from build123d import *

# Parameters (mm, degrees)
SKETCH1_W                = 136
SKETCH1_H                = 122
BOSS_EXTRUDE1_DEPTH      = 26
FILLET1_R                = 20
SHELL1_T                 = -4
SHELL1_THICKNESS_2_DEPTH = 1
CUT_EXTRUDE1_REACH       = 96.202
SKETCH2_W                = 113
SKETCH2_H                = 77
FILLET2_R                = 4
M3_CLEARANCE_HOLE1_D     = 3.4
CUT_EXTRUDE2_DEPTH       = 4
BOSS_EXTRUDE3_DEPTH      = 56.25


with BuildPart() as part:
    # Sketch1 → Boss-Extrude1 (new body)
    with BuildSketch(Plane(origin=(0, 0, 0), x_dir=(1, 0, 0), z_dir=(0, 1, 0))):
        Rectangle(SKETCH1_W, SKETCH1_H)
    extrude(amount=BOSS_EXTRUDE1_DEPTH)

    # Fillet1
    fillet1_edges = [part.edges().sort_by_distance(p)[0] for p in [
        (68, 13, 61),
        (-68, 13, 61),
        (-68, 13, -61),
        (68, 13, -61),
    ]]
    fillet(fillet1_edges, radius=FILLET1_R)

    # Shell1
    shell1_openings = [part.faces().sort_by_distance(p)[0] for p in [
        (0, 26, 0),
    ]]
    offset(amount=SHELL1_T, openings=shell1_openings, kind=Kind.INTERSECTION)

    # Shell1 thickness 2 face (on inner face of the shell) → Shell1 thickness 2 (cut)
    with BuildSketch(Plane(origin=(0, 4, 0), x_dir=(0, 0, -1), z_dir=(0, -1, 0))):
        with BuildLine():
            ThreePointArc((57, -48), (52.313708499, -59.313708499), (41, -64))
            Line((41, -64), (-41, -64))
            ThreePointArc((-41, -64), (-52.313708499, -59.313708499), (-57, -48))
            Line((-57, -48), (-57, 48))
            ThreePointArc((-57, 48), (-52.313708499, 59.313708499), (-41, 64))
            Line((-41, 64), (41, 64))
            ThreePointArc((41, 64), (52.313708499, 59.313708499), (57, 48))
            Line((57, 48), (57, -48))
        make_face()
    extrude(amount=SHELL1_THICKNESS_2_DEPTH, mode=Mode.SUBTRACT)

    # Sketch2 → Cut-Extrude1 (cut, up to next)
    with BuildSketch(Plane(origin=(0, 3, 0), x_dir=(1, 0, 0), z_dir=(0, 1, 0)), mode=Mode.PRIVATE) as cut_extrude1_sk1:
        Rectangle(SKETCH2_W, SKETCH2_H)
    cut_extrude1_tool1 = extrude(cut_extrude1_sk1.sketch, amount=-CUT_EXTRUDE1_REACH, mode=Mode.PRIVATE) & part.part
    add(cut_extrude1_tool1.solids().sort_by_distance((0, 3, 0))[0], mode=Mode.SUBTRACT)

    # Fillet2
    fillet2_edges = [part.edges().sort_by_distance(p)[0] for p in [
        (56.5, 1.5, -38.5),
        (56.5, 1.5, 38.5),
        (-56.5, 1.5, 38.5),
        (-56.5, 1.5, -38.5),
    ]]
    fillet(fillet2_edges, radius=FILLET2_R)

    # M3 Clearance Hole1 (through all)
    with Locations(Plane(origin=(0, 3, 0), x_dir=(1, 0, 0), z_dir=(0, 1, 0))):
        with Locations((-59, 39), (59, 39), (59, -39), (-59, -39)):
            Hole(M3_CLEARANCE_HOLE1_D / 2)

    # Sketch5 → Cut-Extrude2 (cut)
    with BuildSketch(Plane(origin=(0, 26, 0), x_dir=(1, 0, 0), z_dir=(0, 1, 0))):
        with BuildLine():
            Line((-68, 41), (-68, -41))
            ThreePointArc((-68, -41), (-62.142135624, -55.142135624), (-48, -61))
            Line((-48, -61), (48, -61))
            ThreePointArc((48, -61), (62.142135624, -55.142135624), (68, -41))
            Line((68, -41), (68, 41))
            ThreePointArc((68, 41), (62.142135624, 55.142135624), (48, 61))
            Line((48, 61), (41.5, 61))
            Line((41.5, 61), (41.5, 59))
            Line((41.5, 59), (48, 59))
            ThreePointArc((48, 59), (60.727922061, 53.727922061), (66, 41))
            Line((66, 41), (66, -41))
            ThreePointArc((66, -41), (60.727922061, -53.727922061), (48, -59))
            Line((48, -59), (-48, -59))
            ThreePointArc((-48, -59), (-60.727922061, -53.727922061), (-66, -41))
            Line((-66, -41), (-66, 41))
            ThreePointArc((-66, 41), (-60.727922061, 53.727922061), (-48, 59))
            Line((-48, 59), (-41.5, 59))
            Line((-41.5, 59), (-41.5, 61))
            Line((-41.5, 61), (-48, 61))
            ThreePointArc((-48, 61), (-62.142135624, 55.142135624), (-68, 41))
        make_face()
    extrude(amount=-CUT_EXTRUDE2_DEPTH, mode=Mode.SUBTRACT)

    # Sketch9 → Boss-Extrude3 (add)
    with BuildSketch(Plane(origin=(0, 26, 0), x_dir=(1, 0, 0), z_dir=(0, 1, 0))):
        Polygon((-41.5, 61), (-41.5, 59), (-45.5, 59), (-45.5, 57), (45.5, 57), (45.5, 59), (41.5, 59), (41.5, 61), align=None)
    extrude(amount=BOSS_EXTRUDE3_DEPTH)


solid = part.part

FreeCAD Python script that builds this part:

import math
import FreeCAD as App
import Part
import Sketcher
from FreeCAD import Vector


def edges_at(feature, points):
    """Names of the edges that pass closest to the given points."""
    edges = feature.Shape.Edges
    near = lambda p: min(range(len(edges)), key=lambda i: edges[i].distToShape(Part.Vertex(*p))[0])
    return sorted({f"Edge{near(p) + 1}" for p in points})


def faces_at(feature, points):
    """Names of the faces that lie closest to the given points."""
    faces = feature.Shape.Faces
    near = lambda p: min(range(len(faces)), key=lambda i: faces[i].distToShape(Part.Vertex(*p))[0])
    return sorted({f"Face{near(p) + 1}" for p in points})

doc = App.newDocument("Part")
body = doc.addObject("PartDesign::Body", "Body")

# Sketch on XZ plane
sketch1 = body.newObject("Sketcher::SketchObject", "Sketch")
sketch1.AttachmentSupport = (doc.getObject("XZ_Plane"), [""])
sketch1.MapMode = "FlatFace"
sketch1.addGeometry([
    Part.LineSegment(Vector(-68, -61, 0), Vector(-68, 61, 0)),
    Part.LineSegment(Vector(-68, 61, 0), Vector(68, 61, 0)),
    Part.LineSegment(Vector(68, 61, 0), Vector(68, -61, 0)),
    Part.LineSegment(Vector(68, -61, 0), Vector(-68, -61, 0)),
], False)
sketch1.addConstraint([
    Sketcher.Constraint("Coincident", 0, 2, 1, 1),
    Sketcher.Constraint("Coincident", 1, 2, 2, 1),
    Sketcher.Constraint("Coincident", 2, 2, 3, 1),
    Sketcher.Constraint("Coincident", 3, 2, 0, 1),
    Sketcher.Constraint("Vertical", 0),
    Sketcher.Constraint("Horizontal", 1),
    Sketcher.Constraint("Vertical", 2),
    Sketcher.Constraint("Horizontal", 3),
    Sketcher.Constraint("Symmetric", 0, 2, 2, 2, -1, 1),
    Sketcher.Constraint("DistanceX", 1, 1, 1, 2, 136.0),
    Sketcher.Constraint("DistanceY", 0, 1, 0, 2, 122.0),
])
pad1 = body.newObject("PartDesign::Pad", "Pad")
pad1.Profile = sketch1
pad1.Length = 26
pad1.Reversed = True
doc.recompute()

fillet = body.newObject("PartDesign::Fillet", "Fillet")
fillet.Base = (pad1, edges_at(pad1, [
    (68, 13, 61),
    (-68, 13, 61),
    (-68, 13, -61),
    (68, 13, -61),
]))
fillet.Radius = 20
doc.recompute()

thickness = body.newObject("PartDesign::Thickness", "Thickness")
thickness.Base = (fillet, faces_at(fillet, [(0, 26, 0)]))
thickness.Value = 4
thickness.Reversed = True
thickness.Join = "Intersection"

# Sketch on XZ plane
sketch2 = body.newObject("Sketcher::SketchObject", "Sketch001")
sketch2.AttachmentSupport = (doc.getObject("XZ_Plane"), [""])
sketch2.MapMode = "FlatFace"
sketch2.AttachmentOffset = App.Placement(Vector(0, 0, -4), App.Rotation())
sketch2.addGeometry([
    Part.ArcOfCircle(Part.Circle(Vector(-48, -41, 0), Vector(0, 0, 1), 16), math.radians(180), math.radians(270)),  # 0
    Part.LineSegment(Vector(-48, -57, 0), Vector(48, -57, 0)),  # 1
    Part.ArcOfCircle(Part.Circle(Vector(48, -41, 0), Vector(0, 0, 1), 16), math.radians(-90), math.radians(0)),  # 2
    Part.LineSegment(Vector(64, -41, 0), Vector(64, 41, 0)),  # 3
    Part.ArcOfCircle(Part.Circle(Vector(48, 41, 0), Vector(0, 0, 1), 16), math.radians(0), math.radians(90)),  # 4
    Part.LineSegment(Vector(48, 57, 0), Vector(-48, 57, 0)),  # 5
    Part.ArcOfCircle(Part.Circle(Vector(-48, 41, 0), Vector(0, 0, 1), 16), math.radians(90), math.radians(180)),  # 6
    Part.LineSegment(Vector(-64, 41, 0), Vector(-64, -41, 0)),  # 7
], False)
sketch2.addConstraint([
    Sketcher.Constraint("Tangent", 0, 2, 1, 1),
    Sketcher.Constraint("Tangent", 1, 2, 2, 1),
    Sketcher.Constraint("Tangent", 2, 2, 3, 1),
    Sketcher.Constraint("Tangent", 3, 2, 4, 1),
    Sketcher.Constraint("Tangent", 4, 2, 5, 1),
    Sketcher.Constraint("Tangent", 5, 2, 6, 1),
    Sketcher.Constraint("Tangent", 6, 2, 7, 1),
    Sketcher.Constraint("Tangent", 7, 2, 0, 1),
    Sketcher.Constraint("Horizontal", 1),
    Sketcher.Constraint("Vertical", 3),
    Sketcher.Constraint("Horizontal", 5),
    Sketcher.Constraint("Vertical", 7),
    Sketcher.Constraint("Equal", 0, 2),
    Sketcher.Constraint("Equal", 2, 4),
    Sketcher.Constraint("Equal", 4, 6),
    Sketcher.Constraint("Symmetric", 0, 3, 4, 3, -1, 1),
    Sketcher.Constraint("Radius", 0, 16.0),
    Sketcher.Constraint("DistanceX", 1, 1, 1, 2, 96.0),
    Sketcher.Constraint("DistanceY", 3, 1, 3, 2, 82.0),
])
pocket1 = body.newObject("PartDesign::Pocket", "Pocket")
pocket1.Profile = sketch2
pocket1.Length = 1
pocket1.Reversed = True

# Sketch on XZ plane
sketch3 = body.newObject("Sketcher::SketchObject", "Sketch002")
sketch3.AttachmentSupport = (doc.getObject("XZ_Plane"), [""])
sketch3.MapMode = "FlatFace"
sketch3.AttachmentOffset = App.Placement(Vector(0, 0, -3), App.Rotation())
sketch3.addGeometry([
    Part.LineSegment(Vector(-56.5, -38.5, 0), Vector(-56.5, 38.5, 0)),
    Part.LineSegment(Vector(-56.5, 38.5, 0), Vector(56.5, 38.5, 0)),
    Part.LineSegment(Vector(56.5, 38.5, 0), Vector(56.5, -38.5, 0)),
    Part.LineSegment(Vector(56.5, -38.5, 0), Vector(-56.5, -38.5, 0)),
], False)
sketch3.addConstraint([
    Sketcher.Constraint("Coincident", 0, 2, 1, 1),
    Sketcher.Constraint("Coincident", 1, 2, 2, 1),
    Sketcher.Constraint("Coincident", 2, 2, 3, 1),
    Sketcher.Constraint("Coincident", 3, 2, 0, 1),
    Sketcher.Constraint("Vertical", 0),
    Sketcher.Constraint("Horizontal", 1),
    Sketcher.Constraint("Vertical", 2),
    Sketcher.Constraint("Horizontal", 3),
    Sketcher.Constraint("Symmetric", 0, 2, 2, 2, -1, 1),
    Sketcher.Constraint("DistanceX", 1, 1, 1, 2, 113.0),
    Sketcher.Constraint("DistanceY", 0, 1, 0, 2, 77.0),
])
pocket2 = body.newObject("PartDesign::Pocket", "Pocket001")
pocket2.Profile = sketch3
pocket2.Type = "UpToFirst"
pocket2.Reversed = True
doc.recompute()

fillet2 = body.newObject("PartDesign::Fillet", "Fillet001")
fillet2.Base = (pocket2, edges_at(pocket2, [
    (56.5, 1.5, -38.5),
    (56.5, 1.5, 38.5),
    (-56.5, 1.5, 38.5),
    (-56.5, 1.5, -38.5),
]))
fillet2.Radius = 4

# Sketch on XZ plane
sketch4 = body.newObject("Sketcher::SketchObject", "Sketch003")
sketch4.AttachmentSupport = (doc.getObject("XZ_Plane"), [""])
sketch4.MapMode = "FlatFace"
sketch4.AttachmentOffset = App.Placement(Vector(0, 0, -3), App.Rotation())
sketch4.addGeometry([
    Part.Circle(Vector(-59, -39, 0), Vector(0, 0, 1), 1.7),
    Part.Circle(Vector(59, -39, 0), Vector(0, 0, 1), 1.7),
    Part.Circle(Vector(59, 39, 0), Vector(0, 0, 1), 1.7),
    Part.Circle(Vector(-59, 39, 0), Vector(0, 0, 1), 1.7),
], False)
sketch4.addConstraint([
    Sketcher.Constraint("Equal", 0, 1),
    Sketcher.Constraint("Equal", 1, 2),
    Sketcher.Constraint("Equal", 2, 3),
    Sketcher.Constraint("Symmetric", 0, 3, 2, 3, -1, 1),
    Sketcher.Constraint("Symmetric", 1, 3, 3, 3, -1, 1),
    Sketcher.Constraint("Symmetric", 0, 3, 1, 3, -2),
    Sketcher.Constraint("Diameter", 0, 3.4),
    Sketcher.Constraint("DistanceX", 0, 3, -1, 1, 59.0),
    Sketcher.Constraint("DistanceY", 0, 3, -1, 1, 39.0),
])
doc.recompute()
hole = body.newObject("PartDesign::Hole", "Hole")
hole.Profile = sketch4
hole.ThreadType = "None"
hole.Diameter = 3.4
hole.DepthType = "ThroughAll"
hole.Reversed = True

# Sketch on XZ plane
sketch5 = body.newObject("Sketcher::SketchObject", "Sketch004")
sketch5.AttachmentSupport = (doc.getObject("XZ_Plane"), [""])
sketch5.MapMode = "FlatFace"
sketch5.AttachmentOffset = App.Placement(Vector(0, 0, -26), App.Rotation())
sketch5.addGeometry([
    Part.LineSegment(Vector(-68, -41, 0), Vector(-68, 41, 0)),  # 0
    Part.ArcOfCircle(Part.Circle(Vector(-48, 41, 0), Vector(0, 0, 1), 20), math.radians(90), math.radians(180)),  # 1
    Part.LineSegment(Vector(-48, 61, 0), Vector(48, 61, 0)),  # 2
    Part.ArcOfCircle(Part.Circle(Vector(48, 41, 0), Vector(0, 0, 1), 20), math.radians(0), math.radians(90)),  # 3
    Part.LineSegment(Vector(68, 41, 0), Vector(68, -41, 0)),  # 4
    Part.ArcOfCircle(Part.Circle(Vector(48, -41, 0), Vector(0, 0, 1), 20), math.radians(-90), math.radians(0)),  # 5
    Part.LineSegment(Vector(48, -61, 0), Vector(41.5, -61, 0)),  # 6
    Part.LineSegment(Vector(41.5, -61, 0), Vector(41.5, -59, 0)),  # 7
    Part.LineSegment(Vector(41.5, -59, 0), Vector(48, -59, 0)),  # 8
    Part.ArcOfCircle(Part.Circle(Vector(48, -41, 0), Vector(0, 0, 1), 18), math.radians(-90), math.radians(0)),  # 9
    Part.LineSegment(Vector(66, -41, 0), Vector(66, 41, 0)),  # 10
    Part.ArcOfCircle(Part.Circle(Vector(48, 41, 0), Vector(0, 0, 1), 18), math.radians(0), math.radians(90)),  # 11
    Part.LineSegment(Vector(48, 59, 0), Vector(-48, 59, 0)),  # 12
    Part.ArcOfCircle(Part.Circle(Vector(-48, 41, 0), Vector(0, 0, 1), 18), math.radians(90), math.radians(180)),  # 13
    Part.LineSegment(Vector(-66, 41, 0), Vector(-66, -41, 0)),  # 14
    Part.ArcOfCircle(Part.Circle(Vector(-48, -41, 0), Vector(0, 0, 1), 18), math.radians(-180), math.radians(-90)),  # 15
    Part.LineSegment(Vector(-48, -59, 0), Vector(-41.5, -59, 0)),  # 16
    Part.LineSegment(Vector(-41.5, -59, 0), Vector(-41.5, -61, 0)),  # 17
    Part.LineSegment(Vector(-41.5, -61, 0), Vector(-48, -61, 0)),  # 18
    Part.ArcOfCircle(Part.Circle(Vector(-48, -41, 0), Vector(0, 0, 1), 20), math.radians(180), math.radians(270)),  # 19
], False)
sketch5.addConstraint([
    Sketcher.Constraint("Tangent", 0, 2, 1, 2),
    Sketcher.Constraint("Tangent", 1, 1, 2, 1),
    Sketcher.Constraint("Tangent", 2, 2, 3, 2),
    Sketcher.Constraint("Tangent", 3, 1, 4, 1),
    Sketcher.Constraint("Tangent", 4, 2, 5, 2),
    Sketcher.Constraint("Tangent", 5, 1, 6, 1),
    Sketcher.Constraint("Coincident", 6, 2, 7, 1),
    Sketcher.Constraint("Coincident", 7, 2, 8, 1),
    Sketcher.Constraint("Tangent", 8, 2, 9, 1),
    Sketcher.Constraint("Tangent", 9, 2, 10, 1),
    Sketcher.Constraint("Tangent", 10, 2, 11, 1),
    Sketcher.Constraint("Tangent", 11, 2, 12, 1),
    Sketcher.Constraint("Tangent", 12, 2, 13, 1),
    Sketcher.Constraint("Tangent", 13, 2, 14, 1),
    Sketcher.Constraint("Tangent", 14, 2, 15, 1),
    Sketcher.Constraint("Tangent", 15, 2, 16, 1),
    Sketcher.Constraint("Coincident", 16, 2, 17, 1),
    Sketcher.Constraint("Coincident", 17, 2, 18, 1),
    Sketcher.Constraint("Tangent", 18, 2, 19, 2),
    Sketcher.Constraint("Tangent", 19, 1, 0, 1),
    Sketcher.Constraint("Vertical", 0),
    Sketcher.Constraint("Horizontal", 2),
    Sketcher.Constraint("Vertical", 4),
    Sketcher.Constraint("Horizontal", 6),
    Sketcher.Constraint("Vertical", 7),
    Sketcher.Constraint("Horizontal", 8),
    Sketcher.Constraint("Vertical", 10),
    Sketcher.Constraint("Horizontal", 12),
    Sketcher.Constraint("Vertical", 14),
    Sketcher.Constraint("Horizontal", 16),
    Sketcher.Constraint("Vertical", 17),
    Sketcher.Constraint("Horizontal", 18),
    Sketcher.Constraint("Coincident", 9, 3, 5, 3),
    Sketcher.Constraint("Coincident", 11, 3, 3, 3),
    Sketcher.Constraint("Coincident", 13, 3, 1, 3),
    Sketcher.Constraint("Coincident", 19, 3, 15, 3),
    Sketcher.Constraint("Equal", 1, 3),
    Sketcher.Constraint("Equal", 3, 5),
    Sketcher.Constraint("Equal", 13, 15),
    Sketcher.Constraint("Symmetric", 1, 3, 5, 3, -1, 1),
    Sketcher.Constraint("Symmetric", 7, 2, 16, 2, -2),
    Sketcher.Constraint("Radius", 1, 20.0),
    Sketcher.Constraint("Radius", 9, 18.0),
    Sketcher.Constraint("DistanceX", 2, 1, 2, 2, 96.0),
    Sketcher.Constraint("DistanceY", 0, 1, 0, 2, 82.0),
    Sketcher.Constraint("DistanceX", 6, 2, 6, 1, 6.5),
])
pocket3 = body.newObject("PartDesign::Pocket", "Pocket002")
pocket3.Profile = sketch5
pocket3.Length = 4
pocket3.Reversed = True

# Sketch on XZ plane
sketch6 = body.newObject("Sketcher::SketchObject", "Sketch005")
sketch6.AttachmentSupport = (doc.getObject("XZ_Plane"), [""])
sketch6.MapMode = "FlatFace"
sketch6.AttachmentOffset = App.Placement(Vector(0, 0, -26), App.Rotation())
sketch6.addGeometry([
    Part.LineSegment(Vector(-41.5, -61, 0), Vector(-41.5, -59, 0)),  # 0
    Part.LineSegment(Vector(-41.5, -59, 0), Vector(-45.5, -59, 0)),  # 1
    Part.LineSegment(Vector(-45.5, -59, 0), Vector(-45.5, -57, 0)),  # 2
    Part.LineSegment(Vector(-45.5, -57, 0), Vector(45.5, -57, 0)),  # 3
    Part.LineSegment(Vector(45.5, -57, 0), Vector(45.5, -59, 0)),  # 4
    Part.LineSegment(Vector(45.5, -59, 0), Vector(41.5, -59, 0)),  # 5
    Part.LineSegment(Vector(41.5, -59, 0), Vector(41.5, -61, 0)),  # 6
    Part.LineSegment(Vector(41.5, -61, 0), Vector(-41.5, -61, 0)),  # 7
], False)
sketch6.addConstraint([
    Sketcher.Constraint("Coincident", 0, 2, 1, 1),
    Sketcher.Constraint("Coincident", 1, 2, 2, 1),
    Sketcher.Constraint("Coincident", 2, 2, 3, 1),
    Sketcher.Constraint("Coincident", 3, 2, 4, 1),
    Sketcher.Constraint("Coincident", 4, 2, 5, 1),
    Sketcher.Constraint("Coincident", 5, 2, 6, 1),
    Sketcher.Constraint("Coincident", 6, 2, 7, 1),
    Sketcher.Constraint("Coincident", 7, 2, 0, 1),
    Sketcher.Constraint("Vertical", 0),
    Sketcher.Constraint("Horizontal", 1),
    Sketcher.Constraint("Vertical", 2),
    Sketcher.Constraint("Horizontal", 3),
    Sketcher.Constraint("Vertical", 4),
    Sketcher.Constraint("Horizontal", 5),
    Sketcher.Constraint("Vertical", 6),
    Sketcher.Constraint("Horizontal", 7),
    Sketcher.Constraint("Symmetric", 1, 2, 4, 2, -2),
    Sketcher.Constraint("Equal", 1, 5),
    Sketcher.Constraint("Equal", 0, 2),
    Sketcher.Constraint("DistanceX", 1, 2, 1, 1, 4.0),
    Sketcher.Constraint("DistanceX", 3, 1, 3, 2, 91.0),
    Sketcher.Constraint("DistanceY", 0, 1, 0, 2, 2.0),
    Sketcher.Constraint("DistanceY", 0, 2, -1, 1, 59.0),
])
pad2 = body.newObject("PartDesign::Pad", "Pad001")
pad2.Profile = sketch6
pad2.Length = 56.25
pad2.Reversed = True

doc.recompute()
